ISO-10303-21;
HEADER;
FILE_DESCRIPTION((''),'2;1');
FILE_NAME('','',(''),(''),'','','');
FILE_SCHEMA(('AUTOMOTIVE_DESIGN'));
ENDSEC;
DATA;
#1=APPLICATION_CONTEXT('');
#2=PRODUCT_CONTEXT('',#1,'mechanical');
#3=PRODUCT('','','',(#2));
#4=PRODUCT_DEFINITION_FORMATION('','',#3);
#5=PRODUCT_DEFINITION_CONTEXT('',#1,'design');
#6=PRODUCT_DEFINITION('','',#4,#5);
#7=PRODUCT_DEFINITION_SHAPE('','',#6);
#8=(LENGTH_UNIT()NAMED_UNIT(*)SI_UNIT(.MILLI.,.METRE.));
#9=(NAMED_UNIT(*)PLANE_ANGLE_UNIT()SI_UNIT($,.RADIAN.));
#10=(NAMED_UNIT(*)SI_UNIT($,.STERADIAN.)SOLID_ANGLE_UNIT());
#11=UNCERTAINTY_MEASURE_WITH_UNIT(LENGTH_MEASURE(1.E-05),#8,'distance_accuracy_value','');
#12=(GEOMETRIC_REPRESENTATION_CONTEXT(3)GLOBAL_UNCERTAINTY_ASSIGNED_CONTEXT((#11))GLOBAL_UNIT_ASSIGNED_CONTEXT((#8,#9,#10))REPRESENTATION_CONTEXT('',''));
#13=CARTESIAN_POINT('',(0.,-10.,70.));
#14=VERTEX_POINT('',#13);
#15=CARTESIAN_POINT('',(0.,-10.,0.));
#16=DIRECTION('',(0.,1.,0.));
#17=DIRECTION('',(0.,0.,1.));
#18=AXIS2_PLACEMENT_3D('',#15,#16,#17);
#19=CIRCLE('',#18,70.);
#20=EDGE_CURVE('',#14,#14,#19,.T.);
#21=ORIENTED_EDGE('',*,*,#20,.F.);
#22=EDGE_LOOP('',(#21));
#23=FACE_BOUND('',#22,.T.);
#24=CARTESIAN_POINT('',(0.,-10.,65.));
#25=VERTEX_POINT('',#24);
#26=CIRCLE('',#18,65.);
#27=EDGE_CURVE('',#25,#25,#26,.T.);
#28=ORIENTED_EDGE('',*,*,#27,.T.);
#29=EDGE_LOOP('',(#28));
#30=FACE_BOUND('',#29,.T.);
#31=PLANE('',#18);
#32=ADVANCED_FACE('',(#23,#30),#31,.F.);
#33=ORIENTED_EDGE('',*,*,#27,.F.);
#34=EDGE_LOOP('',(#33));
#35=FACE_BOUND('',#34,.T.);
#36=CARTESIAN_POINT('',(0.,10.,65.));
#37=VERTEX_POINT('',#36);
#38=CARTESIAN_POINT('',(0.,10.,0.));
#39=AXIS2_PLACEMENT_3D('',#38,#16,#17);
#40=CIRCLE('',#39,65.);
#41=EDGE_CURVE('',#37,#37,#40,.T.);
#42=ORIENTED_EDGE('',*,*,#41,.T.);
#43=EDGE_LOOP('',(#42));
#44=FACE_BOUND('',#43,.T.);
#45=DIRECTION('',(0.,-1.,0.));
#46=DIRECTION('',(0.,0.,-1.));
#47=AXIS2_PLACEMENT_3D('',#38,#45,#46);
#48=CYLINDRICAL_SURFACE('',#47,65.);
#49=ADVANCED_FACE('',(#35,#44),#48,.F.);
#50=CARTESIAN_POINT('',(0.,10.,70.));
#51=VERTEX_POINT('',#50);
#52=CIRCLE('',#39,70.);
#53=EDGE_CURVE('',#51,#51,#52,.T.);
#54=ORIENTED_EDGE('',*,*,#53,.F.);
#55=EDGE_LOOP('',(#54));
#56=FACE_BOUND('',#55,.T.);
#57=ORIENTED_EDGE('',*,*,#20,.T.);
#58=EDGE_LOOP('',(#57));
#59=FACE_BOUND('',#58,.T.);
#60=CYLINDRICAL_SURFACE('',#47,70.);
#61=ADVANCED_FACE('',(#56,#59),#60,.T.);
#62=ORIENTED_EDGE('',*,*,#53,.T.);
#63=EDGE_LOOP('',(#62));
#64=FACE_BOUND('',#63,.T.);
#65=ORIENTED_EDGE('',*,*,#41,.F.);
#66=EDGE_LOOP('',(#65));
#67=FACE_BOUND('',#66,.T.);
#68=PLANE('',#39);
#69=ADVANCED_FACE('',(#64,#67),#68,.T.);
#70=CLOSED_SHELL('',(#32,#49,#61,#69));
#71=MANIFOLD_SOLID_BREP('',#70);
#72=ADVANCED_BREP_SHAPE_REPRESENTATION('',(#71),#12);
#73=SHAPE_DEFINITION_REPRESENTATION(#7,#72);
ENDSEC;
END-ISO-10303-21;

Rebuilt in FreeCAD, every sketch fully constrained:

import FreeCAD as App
import Part
import Sketcher

V = App.Vector

doc = App.newDocument("Part")
params = doc.addObject("Spreadsheet::Sheet", "Params")
for row, (alias, value) in enumerate([
    ("sketch1_diameter", "140 mm"),
    ("sketch1_diameter2", "130 mm"),
    ("pad1_length", "20 mm"),
], start=1):
    params.set(f"A{row}", alias)
    params.set(f"B{row}", "=" + value)
    params.setAlias(f"B{row}", alias)

body = doc.addObject("PartDesign::Body", "Body")

# Sketch on XZ plane
sketch1 = doc.addObject("Sketcher::SketchObject", "Sketch")
body.addObject(sketch1)
sketch1.AttachmentSupport = (doc.XZ_Plane, [""])
sketch1.MapMode = "FlatFace"
sketch1.addGeometry([
    Part.Circle(V(0, 0, 0), V(0, 0, 1), 70),
    Part.Circle(V(0, 0, 0), V(0, 0, 1), 65),
], False)
sketch1.addConstraint([
    Sketcher.Constraint("Coincident", 0, 3, -1, 1),
    Sketcher.Constraint("Coincident", 1, 3, -1, 1),
    Sketcher.Constraint("Diameter", 0, 140.0),
    Sketcher.Constraint("Diameter", 1, 130.0),
])
sketch1.setExpression("Constraints[2]", "Params.sketch1_diameter")
sketch1.setExpression("Constraints[3]", "Params.sketch1_diameter2")
pad1 = doc.addObject("PartDesign::Pad", "Pad")
body.addObject(pad1)
pad1.Profile = sketch1
pad1.setExpression("Length", "Params.pad1_length")
pad1.Midplane = True

doc.recompute()
